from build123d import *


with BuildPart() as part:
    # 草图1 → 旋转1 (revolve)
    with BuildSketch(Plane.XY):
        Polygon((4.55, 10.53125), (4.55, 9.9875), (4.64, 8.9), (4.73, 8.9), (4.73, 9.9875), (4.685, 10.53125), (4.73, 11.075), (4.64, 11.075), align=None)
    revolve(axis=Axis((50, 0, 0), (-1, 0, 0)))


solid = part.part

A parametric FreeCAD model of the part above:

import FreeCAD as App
import Part
import Sketcher
from FreeCAD import Vector
Q = App.Units.Quantity

doc = App.newDocument("Part")
body = doc.addObject("PartDesign::Body", "Body")

sketch1 = body.newObject("Sketcher::SketchObject", "Sketch")
sketch1.AttachmentSupport = (doc.getObject("XY_Plane"), [""])
sketch1.MapMode = "FlatFace"
sketch1.addGeometry(Part.LineSegment(Vector(4.55, 10.53, 0), Vector(4.55, 9.99, 0)), False)
sketch1.addGeometry(Part.LineSegment(Vector(4.55, 9.99, 0), Vector(4.64, 8.9, 0)), False)
sketch1.addGeometry(Part.LineSegment(Vector(4.64, 8.9, 0), Vector(4.73, 8.9, 0)), False)
sketch1.addGeometry(Part.LineSegment(Vector(4.73, 8.9, 0), Vector(4.73, 9.99, 0)), False)
sketch1.addGeometry(Part.LineSegment(Vector(4.73, 9.99, 0), Vector(4.68, 10.53, 0)), False)
sketch1.addGeometry(Part.LineSegment(Vector(4.68, 10.53, 0), Vector(4.73, 11.07, 0)), False)
sketch1.addGeometry(Part.LineSegment(Vector(4.73, 11.07, 0), Vector(4.64, 11.07, 0)), False)
sketch1.addGeometry(Part.LineSegment(Vector(4.64, 11.07, 0), Vector(4.55, 10.53, 0)), False)
sketch1.addConstraint(Sketcher.Constraint("Coincident", 0, 2, 1, 1))
sketch1.addConstraint(Sketcher.Constraint("Coincident", 1, 2, 2, 1))
sketch1.addConstraint(Sketcher.Constraint("Coincident", 2, 2, 3, 1))
sketch1.addConstraint(Sketcher.Constraint("Coincident", 3, 2, 4, 1))
sketch1.addConstraint(Sketcher.Constraint("Coincident", 4, 2, 5, 1))
sketch1.addConstraint(Sketcher.Constraint("Coincident", 5, 2, 6, 1))
sketch1.addConstraint(Sketcher.Constraint("Coincident", 6, 2, 7, 1))
sketch1.addConstraint(Sketcher.Constraint("Coincident", 7, 2, 0, 1))
sketch1.addConstraint(Sketcher.Constraint("Vertical", 0))
sketch1.addConstraint(Sketcher.Constraint("Horizontal", 2))
sketch1.addConstraint(Sketcher.Constraint("Vertical", 3))
sketch1.addConstraint(Sketcher.Constraint("Horizontal", 6))
sketch1.addConstraint(Sketcher.Constraint("Parallel", 1, 4))
sketch1.addConstraint(Sketcher.Constraint("Horizontal", 0, 2, 3, 2))
sketch1.addConstraint(Sketcher.Constraint("Horizontal", 4, 2, 7, 2))
sketch1.addConstraint(Sketcher.Constraint("Vertical", 3, 2, 5, 2))
sketch1.addConstraint(Sketcher.Constraint("Vertical", 1, 2, 6, 2))
sketch1.addConstraint(Sketcher.Constraint("Equal", 4, 5))
sketch1.addConstraint(Sketcher.Constraint("DistanceX", 2, 1, 2, 2, Q("0.09 mm")))
sketch1.addConstraint(Sketcher.Constraint("DistanceY", -1, 1, 1, 2, Q("8.9 mm")))
sketch1.addConstraint(Sketcher.Constraint("DistanceX", -1, 1, 0, 2, Q("4.55 mm")))
sketch1.addConstraint(Sketcher.Constraint("DistanceX", -1, 1, 1, 2, Q("4.64 mm")))
sketch1.addConstraint(Sketcher.Constraint("DistanceY", 3, 1, 3, 2, Q("1.0875 mm")))
sketch1.addConstraint(Sketcher.Constraint("DistanceX", -1, 1, 4, 2, Q("4.685 mm")))
revolution = body.newObject("PartDesign::Revolution", "Revolution")
revolution.Profile = sketch1
revolution.ReferenceAxis = (sketch1, ["H_Axis"])
revolution.Angle = 360

doc.recompute()
